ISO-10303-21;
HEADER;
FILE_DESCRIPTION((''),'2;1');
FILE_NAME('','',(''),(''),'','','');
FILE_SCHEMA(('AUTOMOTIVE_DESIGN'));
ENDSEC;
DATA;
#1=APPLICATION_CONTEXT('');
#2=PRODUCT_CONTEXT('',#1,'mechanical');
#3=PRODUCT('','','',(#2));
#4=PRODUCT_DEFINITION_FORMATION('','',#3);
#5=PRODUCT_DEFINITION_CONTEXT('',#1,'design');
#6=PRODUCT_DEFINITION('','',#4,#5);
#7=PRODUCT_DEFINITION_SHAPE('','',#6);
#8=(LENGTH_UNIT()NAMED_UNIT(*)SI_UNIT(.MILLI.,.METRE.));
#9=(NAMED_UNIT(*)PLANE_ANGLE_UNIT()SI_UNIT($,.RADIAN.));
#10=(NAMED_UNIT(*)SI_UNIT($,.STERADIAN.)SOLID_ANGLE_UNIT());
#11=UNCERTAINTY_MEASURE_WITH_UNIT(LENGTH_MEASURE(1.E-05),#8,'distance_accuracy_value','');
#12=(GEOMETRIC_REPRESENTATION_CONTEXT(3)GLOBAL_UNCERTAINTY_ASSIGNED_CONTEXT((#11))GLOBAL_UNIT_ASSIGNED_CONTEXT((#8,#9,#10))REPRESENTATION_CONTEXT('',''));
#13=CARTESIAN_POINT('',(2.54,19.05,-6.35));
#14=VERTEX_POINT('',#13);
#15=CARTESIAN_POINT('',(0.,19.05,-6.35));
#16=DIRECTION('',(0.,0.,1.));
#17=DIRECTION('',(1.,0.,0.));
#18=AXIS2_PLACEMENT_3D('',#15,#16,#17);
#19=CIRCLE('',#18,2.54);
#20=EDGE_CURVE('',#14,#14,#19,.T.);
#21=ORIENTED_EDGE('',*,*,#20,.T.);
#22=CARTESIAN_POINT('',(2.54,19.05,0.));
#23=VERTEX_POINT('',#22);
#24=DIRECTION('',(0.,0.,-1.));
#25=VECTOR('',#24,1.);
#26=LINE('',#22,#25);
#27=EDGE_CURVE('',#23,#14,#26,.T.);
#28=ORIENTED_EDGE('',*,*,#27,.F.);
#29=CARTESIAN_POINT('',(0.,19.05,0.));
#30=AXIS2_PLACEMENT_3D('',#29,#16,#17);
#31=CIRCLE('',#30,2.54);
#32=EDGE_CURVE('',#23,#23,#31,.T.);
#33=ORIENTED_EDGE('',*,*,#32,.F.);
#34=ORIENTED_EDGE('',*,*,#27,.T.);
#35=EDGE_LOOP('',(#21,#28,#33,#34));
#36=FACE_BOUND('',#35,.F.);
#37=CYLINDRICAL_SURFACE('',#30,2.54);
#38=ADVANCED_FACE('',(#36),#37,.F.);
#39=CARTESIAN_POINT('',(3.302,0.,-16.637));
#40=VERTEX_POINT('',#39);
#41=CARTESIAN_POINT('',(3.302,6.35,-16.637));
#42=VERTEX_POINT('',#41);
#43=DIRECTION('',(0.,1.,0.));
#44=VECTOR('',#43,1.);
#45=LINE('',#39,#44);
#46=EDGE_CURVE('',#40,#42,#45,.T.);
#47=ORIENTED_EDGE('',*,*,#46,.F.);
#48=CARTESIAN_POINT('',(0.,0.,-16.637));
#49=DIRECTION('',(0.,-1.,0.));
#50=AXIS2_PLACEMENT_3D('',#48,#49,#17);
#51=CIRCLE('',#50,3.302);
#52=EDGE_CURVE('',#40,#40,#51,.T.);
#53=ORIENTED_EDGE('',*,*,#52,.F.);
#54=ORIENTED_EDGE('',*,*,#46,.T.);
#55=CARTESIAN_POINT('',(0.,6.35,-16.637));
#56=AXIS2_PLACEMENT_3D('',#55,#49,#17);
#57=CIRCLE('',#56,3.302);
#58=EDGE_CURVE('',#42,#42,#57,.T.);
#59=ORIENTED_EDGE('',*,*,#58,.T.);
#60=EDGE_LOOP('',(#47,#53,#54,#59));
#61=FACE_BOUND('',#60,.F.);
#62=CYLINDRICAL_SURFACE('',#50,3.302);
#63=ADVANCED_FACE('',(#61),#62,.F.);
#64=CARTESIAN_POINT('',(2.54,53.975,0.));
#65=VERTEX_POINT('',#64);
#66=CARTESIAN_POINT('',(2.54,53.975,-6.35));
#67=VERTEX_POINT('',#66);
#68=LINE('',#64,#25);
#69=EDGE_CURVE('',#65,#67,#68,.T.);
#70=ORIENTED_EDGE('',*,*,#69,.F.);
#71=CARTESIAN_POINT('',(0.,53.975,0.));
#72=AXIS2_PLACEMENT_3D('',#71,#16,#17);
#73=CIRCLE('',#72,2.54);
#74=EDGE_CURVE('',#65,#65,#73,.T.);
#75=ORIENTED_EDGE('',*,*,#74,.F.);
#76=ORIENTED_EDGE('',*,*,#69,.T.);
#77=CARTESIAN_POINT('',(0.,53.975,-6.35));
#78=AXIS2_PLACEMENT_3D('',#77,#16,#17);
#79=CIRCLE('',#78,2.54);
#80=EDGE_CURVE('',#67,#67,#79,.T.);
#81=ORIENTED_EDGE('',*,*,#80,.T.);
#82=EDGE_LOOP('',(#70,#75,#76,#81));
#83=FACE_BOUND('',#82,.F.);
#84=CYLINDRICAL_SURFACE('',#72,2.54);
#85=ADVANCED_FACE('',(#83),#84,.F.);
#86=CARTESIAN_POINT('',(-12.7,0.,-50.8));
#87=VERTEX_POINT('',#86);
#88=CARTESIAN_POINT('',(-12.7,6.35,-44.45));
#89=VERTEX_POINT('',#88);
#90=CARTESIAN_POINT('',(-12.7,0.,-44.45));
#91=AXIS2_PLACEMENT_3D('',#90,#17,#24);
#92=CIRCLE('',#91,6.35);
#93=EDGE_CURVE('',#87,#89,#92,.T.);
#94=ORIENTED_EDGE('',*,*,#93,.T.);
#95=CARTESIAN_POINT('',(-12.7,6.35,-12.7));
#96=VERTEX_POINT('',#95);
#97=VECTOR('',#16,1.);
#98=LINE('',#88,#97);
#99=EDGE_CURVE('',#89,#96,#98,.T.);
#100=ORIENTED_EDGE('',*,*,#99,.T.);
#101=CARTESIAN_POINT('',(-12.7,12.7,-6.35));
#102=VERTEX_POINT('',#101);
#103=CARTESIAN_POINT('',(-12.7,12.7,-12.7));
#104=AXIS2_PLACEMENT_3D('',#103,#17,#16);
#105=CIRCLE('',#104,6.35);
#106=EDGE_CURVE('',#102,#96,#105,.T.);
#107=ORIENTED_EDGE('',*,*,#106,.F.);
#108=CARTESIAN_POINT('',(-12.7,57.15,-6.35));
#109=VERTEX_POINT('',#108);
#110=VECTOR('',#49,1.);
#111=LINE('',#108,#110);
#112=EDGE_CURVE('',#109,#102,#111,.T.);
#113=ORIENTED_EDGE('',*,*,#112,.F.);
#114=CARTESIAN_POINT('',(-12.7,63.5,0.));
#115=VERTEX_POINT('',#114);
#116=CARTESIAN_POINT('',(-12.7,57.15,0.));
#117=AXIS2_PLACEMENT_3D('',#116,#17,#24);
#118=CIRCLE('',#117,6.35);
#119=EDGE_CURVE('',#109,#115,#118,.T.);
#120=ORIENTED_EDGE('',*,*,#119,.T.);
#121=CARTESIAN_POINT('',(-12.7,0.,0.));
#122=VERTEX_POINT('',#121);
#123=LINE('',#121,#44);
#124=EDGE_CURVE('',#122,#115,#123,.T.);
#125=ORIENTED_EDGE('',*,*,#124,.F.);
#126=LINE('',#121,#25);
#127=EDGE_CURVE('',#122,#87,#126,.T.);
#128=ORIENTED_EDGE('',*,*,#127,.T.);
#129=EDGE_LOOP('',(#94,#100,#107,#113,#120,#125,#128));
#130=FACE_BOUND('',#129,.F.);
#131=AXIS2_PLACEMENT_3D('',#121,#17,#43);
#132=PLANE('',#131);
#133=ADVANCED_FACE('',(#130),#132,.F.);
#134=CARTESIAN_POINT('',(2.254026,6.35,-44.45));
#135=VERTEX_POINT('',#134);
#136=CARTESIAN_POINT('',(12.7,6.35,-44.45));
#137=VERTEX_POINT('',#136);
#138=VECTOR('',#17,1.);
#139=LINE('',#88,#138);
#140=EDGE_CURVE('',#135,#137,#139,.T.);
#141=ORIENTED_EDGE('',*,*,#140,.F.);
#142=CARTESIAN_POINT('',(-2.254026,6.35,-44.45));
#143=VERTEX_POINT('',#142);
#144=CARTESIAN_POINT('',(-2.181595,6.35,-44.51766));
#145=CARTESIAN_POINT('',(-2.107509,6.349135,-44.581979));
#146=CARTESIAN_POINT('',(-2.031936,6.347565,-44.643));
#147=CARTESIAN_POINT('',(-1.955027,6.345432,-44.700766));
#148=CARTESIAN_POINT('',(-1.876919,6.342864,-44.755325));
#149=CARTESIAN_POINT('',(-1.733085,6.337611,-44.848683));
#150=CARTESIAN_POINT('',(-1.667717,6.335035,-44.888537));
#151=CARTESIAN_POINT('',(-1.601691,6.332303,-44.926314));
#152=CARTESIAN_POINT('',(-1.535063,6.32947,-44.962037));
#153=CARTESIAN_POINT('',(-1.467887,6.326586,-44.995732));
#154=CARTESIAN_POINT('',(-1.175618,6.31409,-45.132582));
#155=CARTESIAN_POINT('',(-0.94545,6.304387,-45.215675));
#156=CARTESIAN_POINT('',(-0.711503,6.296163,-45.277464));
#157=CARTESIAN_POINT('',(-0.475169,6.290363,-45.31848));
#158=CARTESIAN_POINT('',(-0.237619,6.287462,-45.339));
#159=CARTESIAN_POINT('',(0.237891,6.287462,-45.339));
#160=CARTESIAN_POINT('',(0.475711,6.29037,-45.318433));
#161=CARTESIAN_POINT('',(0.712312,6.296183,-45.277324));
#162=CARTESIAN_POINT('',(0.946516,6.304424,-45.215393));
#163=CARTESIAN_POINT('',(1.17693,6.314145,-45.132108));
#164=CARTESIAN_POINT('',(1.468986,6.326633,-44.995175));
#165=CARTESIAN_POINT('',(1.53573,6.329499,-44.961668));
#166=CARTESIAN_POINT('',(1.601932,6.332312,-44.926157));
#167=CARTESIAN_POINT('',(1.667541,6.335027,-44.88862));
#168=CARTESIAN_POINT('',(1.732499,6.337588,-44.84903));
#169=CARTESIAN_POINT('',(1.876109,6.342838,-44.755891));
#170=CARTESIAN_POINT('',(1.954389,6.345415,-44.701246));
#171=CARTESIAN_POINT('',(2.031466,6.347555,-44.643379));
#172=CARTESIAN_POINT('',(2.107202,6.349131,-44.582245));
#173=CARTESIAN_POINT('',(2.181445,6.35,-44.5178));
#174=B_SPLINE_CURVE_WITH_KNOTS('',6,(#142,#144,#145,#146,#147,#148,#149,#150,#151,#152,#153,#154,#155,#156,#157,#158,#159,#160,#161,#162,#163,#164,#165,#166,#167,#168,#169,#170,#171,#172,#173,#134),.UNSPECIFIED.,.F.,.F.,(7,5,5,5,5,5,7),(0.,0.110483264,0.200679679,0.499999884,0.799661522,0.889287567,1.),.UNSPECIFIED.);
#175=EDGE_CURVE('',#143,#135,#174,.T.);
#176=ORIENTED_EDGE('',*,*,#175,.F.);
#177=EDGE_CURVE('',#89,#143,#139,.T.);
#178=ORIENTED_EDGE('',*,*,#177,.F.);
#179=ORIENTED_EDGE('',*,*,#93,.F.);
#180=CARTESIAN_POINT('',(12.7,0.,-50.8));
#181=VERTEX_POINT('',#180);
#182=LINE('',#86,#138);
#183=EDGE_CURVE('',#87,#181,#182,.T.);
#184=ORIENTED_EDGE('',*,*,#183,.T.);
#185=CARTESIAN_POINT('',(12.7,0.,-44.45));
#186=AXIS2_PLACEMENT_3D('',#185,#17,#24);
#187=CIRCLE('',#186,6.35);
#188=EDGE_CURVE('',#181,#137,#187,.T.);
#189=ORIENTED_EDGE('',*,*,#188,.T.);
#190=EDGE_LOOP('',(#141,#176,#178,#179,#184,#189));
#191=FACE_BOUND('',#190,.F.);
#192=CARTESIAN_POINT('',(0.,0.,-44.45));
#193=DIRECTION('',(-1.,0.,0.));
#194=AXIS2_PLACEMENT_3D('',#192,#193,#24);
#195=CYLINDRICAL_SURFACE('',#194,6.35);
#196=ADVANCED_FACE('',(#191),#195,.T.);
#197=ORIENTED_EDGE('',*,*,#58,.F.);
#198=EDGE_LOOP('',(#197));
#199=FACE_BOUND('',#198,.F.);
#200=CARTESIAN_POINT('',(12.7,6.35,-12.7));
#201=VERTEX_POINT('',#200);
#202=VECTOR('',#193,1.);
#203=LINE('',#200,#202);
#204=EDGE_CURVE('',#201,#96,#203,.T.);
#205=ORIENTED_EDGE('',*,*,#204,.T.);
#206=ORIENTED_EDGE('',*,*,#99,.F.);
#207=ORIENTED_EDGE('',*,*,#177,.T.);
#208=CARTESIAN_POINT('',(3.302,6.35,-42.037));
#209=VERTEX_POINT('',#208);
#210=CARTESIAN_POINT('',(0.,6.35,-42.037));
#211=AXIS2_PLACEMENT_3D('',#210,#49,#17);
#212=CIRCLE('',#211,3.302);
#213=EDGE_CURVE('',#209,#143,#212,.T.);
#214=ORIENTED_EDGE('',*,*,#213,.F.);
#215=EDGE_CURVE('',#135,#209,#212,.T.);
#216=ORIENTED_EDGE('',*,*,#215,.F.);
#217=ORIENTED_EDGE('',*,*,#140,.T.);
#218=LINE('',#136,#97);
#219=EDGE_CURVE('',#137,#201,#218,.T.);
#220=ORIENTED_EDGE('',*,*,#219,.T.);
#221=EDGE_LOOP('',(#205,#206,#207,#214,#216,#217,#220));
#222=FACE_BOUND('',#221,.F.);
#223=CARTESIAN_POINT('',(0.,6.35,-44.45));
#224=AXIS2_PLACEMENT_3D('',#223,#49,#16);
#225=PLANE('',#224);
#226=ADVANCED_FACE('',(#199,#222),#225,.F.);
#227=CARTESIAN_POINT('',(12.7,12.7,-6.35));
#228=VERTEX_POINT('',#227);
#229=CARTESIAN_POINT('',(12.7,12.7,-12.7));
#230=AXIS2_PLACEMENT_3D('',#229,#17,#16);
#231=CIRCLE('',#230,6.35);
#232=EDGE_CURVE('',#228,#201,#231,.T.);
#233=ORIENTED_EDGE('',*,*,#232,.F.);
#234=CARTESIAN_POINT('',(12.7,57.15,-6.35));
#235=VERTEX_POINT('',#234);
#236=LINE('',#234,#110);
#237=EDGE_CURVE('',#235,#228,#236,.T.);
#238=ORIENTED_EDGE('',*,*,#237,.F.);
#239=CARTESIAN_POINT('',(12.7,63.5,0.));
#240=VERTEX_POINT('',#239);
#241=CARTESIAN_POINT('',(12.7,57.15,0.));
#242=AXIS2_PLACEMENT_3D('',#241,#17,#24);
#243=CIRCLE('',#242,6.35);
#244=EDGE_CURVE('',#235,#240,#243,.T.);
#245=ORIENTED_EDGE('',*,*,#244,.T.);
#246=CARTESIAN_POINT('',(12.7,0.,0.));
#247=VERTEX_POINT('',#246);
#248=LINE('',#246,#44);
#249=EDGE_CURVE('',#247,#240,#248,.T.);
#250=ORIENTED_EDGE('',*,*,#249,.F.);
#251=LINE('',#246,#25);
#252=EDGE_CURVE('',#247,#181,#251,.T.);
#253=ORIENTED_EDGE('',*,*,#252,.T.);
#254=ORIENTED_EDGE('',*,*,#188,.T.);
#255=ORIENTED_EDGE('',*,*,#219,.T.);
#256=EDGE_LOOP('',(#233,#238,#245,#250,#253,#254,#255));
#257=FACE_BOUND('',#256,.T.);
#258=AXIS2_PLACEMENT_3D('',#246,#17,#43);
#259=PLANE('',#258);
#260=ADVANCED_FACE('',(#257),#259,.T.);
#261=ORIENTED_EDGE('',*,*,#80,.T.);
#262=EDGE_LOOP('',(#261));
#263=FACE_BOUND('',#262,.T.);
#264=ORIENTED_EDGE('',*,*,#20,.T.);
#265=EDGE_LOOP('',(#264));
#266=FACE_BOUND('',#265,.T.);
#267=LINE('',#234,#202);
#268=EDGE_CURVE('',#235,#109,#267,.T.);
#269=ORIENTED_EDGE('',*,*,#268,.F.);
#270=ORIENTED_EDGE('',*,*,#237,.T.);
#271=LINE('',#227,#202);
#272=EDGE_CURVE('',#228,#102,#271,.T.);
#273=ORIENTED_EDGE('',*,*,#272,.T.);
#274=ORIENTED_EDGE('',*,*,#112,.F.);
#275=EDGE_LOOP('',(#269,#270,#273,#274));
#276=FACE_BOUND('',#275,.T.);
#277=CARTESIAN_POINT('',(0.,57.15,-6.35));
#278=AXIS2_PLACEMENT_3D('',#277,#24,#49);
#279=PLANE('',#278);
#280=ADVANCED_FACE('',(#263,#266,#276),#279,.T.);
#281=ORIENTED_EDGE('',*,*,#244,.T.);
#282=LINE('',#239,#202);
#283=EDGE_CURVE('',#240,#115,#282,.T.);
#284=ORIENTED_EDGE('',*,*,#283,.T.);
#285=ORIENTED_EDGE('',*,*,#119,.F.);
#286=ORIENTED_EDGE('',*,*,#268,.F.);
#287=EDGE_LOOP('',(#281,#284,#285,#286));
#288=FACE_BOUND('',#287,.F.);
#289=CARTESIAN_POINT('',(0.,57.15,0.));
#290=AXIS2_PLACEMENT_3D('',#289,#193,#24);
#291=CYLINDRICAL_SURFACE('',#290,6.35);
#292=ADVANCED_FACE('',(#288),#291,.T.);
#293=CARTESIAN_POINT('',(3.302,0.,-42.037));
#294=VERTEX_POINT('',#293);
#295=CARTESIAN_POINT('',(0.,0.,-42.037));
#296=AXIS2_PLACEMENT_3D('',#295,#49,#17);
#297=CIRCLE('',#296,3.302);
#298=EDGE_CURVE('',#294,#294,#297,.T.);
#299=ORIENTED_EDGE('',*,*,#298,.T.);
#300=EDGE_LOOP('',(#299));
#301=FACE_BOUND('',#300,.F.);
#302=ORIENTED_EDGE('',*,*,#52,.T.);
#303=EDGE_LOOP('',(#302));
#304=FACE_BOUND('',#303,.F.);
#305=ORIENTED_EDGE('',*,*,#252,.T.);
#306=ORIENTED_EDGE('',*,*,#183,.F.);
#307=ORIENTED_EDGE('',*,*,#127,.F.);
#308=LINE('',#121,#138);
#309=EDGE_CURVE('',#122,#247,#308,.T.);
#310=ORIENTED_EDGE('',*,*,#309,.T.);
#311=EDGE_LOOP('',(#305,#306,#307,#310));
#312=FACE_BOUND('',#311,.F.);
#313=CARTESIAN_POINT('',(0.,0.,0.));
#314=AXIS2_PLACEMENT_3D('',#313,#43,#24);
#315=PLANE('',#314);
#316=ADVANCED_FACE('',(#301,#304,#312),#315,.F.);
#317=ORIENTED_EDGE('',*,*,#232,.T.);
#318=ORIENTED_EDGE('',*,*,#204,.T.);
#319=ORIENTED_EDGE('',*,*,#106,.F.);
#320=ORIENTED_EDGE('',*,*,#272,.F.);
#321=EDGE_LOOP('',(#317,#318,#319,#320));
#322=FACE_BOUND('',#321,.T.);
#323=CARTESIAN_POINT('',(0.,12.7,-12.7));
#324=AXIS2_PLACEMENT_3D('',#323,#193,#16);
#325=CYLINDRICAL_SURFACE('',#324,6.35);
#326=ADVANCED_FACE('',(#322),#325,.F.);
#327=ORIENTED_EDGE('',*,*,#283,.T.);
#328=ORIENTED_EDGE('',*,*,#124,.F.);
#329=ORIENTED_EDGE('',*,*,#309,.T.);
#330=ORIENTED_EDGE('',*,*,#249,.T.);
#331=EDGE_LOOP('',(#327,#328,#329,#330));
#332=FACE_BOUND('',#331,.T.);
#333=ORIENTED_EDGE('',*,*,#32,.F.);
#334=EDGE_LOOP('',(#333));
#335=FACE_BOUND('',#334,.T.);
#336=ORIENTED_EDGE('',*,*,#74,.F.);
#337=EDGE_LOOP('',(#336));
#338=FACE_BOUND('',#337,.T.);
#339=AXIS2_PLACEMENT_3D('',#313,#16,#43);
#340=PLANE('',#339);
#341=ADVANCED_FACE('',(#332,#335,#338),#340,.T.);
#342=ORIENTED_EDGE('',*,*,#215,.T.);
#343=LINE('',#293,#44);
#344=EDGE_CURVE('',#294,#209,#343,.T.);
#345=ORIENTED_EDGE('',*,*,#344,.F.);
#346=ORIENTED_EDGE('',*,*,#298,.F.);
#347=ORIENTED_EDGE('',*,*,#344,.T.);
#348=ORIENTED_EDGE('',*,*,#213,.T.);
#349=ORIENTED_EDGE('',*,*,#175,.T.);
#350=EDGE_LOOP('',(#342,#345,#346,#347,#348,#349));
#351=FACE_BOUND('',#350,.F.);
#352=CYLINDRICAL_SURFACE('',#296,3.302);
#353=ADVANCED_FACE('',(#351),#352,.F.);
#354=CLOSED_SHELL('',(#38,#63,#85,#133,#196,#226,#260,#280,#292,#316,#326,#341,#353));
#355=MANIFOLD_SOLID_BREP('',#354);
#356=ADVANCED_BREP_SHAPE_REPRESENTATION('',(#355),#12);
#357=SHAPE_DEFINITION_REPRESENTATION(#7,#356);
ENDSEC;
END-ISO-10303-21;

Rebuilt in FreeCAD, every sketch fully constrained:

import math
import FreeCAD as App
import Part
import Sketcher
Q = App.Units.Quantity

doc = App.newDocument("Part")
body = doc.addObject("PartDesign::Body", "Body")

sketch1 = doc.addObject("Sketcher::SketchObject", "Sketch")
body.addObject(sketch1)
sketch1.AttachmentSupport = (doc.YZ_Plane, [""])
sketch1.MapMode = "FlatFace"
sketch1.addGeometry(Part.LineSegment(App.Vector(64, 0, 0), App.Vector(0, 0, 0)), False)
sketch1.addGeometry(Part.LineSegment(App.Vector(0, 0, 0), App.Vector(0, -51, 0)), False)
sketch1.addGeometry(Part.ArcOfCircle(Part.Circle(App.Vector(0, -44, 0), App.Vector(0, 0, 1), 6), math.radians(-90), math.radians(0)), False)
sketch1.addGeometry(Part.LineSegment(App.Vector(6, -44, 0), App.Vector(6, -13, 0)), False)
sketch1.addGeometry(Part.ArcOfCircle(Part.Circle(App.Vector(13, -13, 0), App.Vector(0, 0, 1), 6), math.radians(90), math.radians(180)), False)
sketch1.addGeometry(Part.LineSegment(App.Vector(13, -6, 0), App.Vector(57, -6, 0)), False)
sketch1.addGeometry(Part.ArcOfCircle(Part.Circle(App.Vector(57, 0, 0), App.Vector(0, 0, 1), 6), math.radians(-90), math.radians(0)), False)
sketch1.addConstraint(Sketcher.Constraint("Coincident", 0, 2, 1, 1))
sketch1.addConstraint(Sketcher.Constraint("Coincident", 1, 2, 2, 1))
sketch1.addConstraint(Sketcher.Constraint("Tangent", 2, 2, 3, 1))
sketch1.addConstraint(Sketcher.Constraint("Tangent", 3, 2, 4, 2))
sketch1.addConstraint(Sketcher.Constraint("Tangent", 4, 1, 5, 1))
sketch1.addConstraint(Sketcher.Constraint("Tangent", 5, 2, 6, 1))
sketch1.addConstraint(Sketcher.Constraint("Coincident", 6, 2, 0, 1))
sketch1.addConstraint(Sketcher.Constraint("Horizontal", 0))
sketch1.addConstraint(Sketcher.Constraint("Vertical", 1))
sketch1.addConstraint(Sketcher.Constraint("Vertical", 3))
sketch1.addConstraint(Sketcher.Constraint("Horizontal", 5))
sketch1.addConstraint(Sketcher.Constraint("Coincident", 0, 2, -1, 1))
sketch1.addConstraint(Sketcher.Constraint("Equal", 2, 4))
sketch1.addConstraint(Sketcher.Constraint("Equal", 4, 6))
sketch1.addConstraint(Sketcher.Constraint("PointOnObject", 2, 3, -2))
sketch1.addConstraint(Sketcher.Constraint("PointOnObject", 6, 3, -1))
sketch1.addConstraint(Sketcher.Constraint("DistanceY", 1, 2, 1, 1, Q("2 in")))
sketch1.addConstraint(Sketcher.Constraint("Radius", 2, Q("0.25 in")))
sketch1.addConstraint(Sketcher.Constraint("DistanceX", 0, 2, 0, 1, Q("2.5 in")))
pad1 = doc.addObject("PartDesign::Pad", "Pad")
body.addObject(pad1)
pad1.Profile = sketch1
pad1.Length = Q("1 in")
pad1.Midplane = True

sketch2 = doc.addObject("Sketcher::SketchObject", "Sketch001")
body.addObject(sketch2)
sketch2.AttachmentSupport = (doc.XY_Plane, [""])
sketch2.MapMode = "FlatFace"
sketch2.addGeometry(Part.Circle(App.Vector(0, 19.1, 0), App.Vector(0, 0, 1), 2.5), False)
sketch2.addGeometry(Part.Circle(App.Vector(0, 54, 0), App.Vector(0, 0, 1), 2.5), False)
sketch2.addConstraint(Sketcher.Constraint("Equal", 0, 1))
sketch2.addConstraint(Sketcher.Constraint("PointOnObject", 0, 3, -2))
sketch2.addConstraint(Sketcher.Constraint("PointOnObject", 1, 3, -2))
sketch2.addConstraint(Sketcher.Constraint("Diameter", 0, Q("0.2 in")))
sketch2.addConstraint(Sketcher.Constraint("DistanceY", -1, 1, 0, 3, Q("0.75 in")))
sketch2.addConstraint(Sketcher.Constraint("DistanceY", -1, 1, 1, 3, Q("2.125 in")))
pocket1 = doc.addObject("PartDesign::Pocket", "Pocket")
body.addObject(pocket1)
pocket1.Profile = sketch2
pocket1.Type = "ThroughAll"

sketch3 = doc.addObject("Sketcher::SketchObject", "Sketch002")
body.addObject(sketch3)
sketch3.AttachmentSupport = (doc.XZ_Plane, [""])
sketch3.MapMode = "FlatFace"
sketch3.addGeometry(Part.Circle(App.Vector(0, -16.6, 0), App.Vector(0, 0, 1), 3.3), False)
sketch3.addGeometry(Part.Circle(App.Vector(0, -42, 0), App.Vector(0, 0, 1), 3.3), False)
sketch3.addConstraint(Sketcher.Constraint("Equal", 0, 1))
sketch3.addConstraint(Sketcher.Constraint("PointOnObject", 0, 3, -2))
sketch3.addConstraint(Sketcher.Constraint("PointOnObject", 1, 3, -2))
sketch3.addConstraint(Sketcher.Constraint("Diameter", 0, Q("0.26 in")))
sketch3.addConstraint(Sketcher.Constraint("DistanceY", 1, 3, 0, 3, Q("1 in")))
sketch3.addConstraint(Sketcher.Constraint("DistanceY", 0, 3, -1, 1, Q("0.655 in")))
pocket2 = doc.addObject("PartDesign::Pocket", "Pocket001")
body.addObject(pocket2)
pocket2.Profile = sketch3
pocket2.Type = "ThroughAll"

doc.recompute()
